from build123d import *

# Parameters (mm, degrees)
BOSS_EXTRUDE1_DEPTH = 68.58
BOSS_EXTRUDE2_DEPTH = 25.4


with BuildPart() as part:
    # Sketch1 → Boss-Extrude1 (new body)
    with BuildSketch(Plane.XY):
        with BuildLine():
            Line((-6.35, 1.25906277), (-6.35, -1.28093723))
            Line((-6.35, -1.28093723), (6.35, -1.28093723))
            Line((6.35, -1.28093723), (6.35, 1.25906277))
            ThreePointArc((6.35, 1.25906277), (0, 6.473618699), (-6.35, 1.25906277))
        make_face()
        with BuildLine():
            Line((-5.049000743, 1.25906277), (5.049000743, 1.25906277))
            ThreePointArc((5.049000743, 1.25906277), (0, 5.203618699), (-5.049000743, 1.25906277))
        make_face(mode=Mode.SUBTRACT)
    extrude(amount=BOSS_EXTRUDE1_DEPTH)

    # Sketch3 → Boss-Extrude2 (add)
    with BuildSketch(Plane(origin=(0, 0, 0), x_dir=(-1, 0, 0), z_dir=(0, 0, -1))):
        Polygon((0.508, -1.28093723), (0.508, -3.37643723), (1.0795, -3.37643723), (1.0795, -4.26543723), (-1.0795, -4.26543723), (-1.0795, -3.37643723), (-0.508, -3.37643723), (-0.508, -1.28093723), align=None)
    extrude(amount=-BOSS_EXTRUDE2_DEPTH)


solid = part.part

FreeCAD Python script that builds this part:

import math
import FreeCAD as App
import Part
import Sketcher
from FreeCAD import Vector
Q = App.Units.Quantity


def add_polygon(sketch, points):
    """Adds a closed chain of lines whose ends are joined by coincident constraints."""
    first, n = sketch.GeometryCount, len(points)
    for a, b in zip(points, points[1:] + points[:1]):
        sketch.addGeometry(Part.LineSegment(App.Vector(*a, 0), App.Vector(*b, 0)), False)
    for i in range(n):
        sketch.addConstraint(Sketcher.Constraint("Coincident", first + i, 2, first + (i + 1) % n, 1))

doc = App.newDocument("Part")
params = doc.addObject("Spreadsheet::Sheet", "Params")
for row, (alias, value) in enumerate([
    ("sketch1_width", "0.5 in"),
    ("sketch1_height", "0.1 in"),
    ("pad1_length", "2.7 in"),
    ("sketch2_width", "0.04 in"),
    ("sketch2_width2", "0.085 in"),
    ("sketch2_height", "0.035 in"),
    ("pad2_length", "1 in"),
], start=1):
    params.set(f"A{row}", alias)
    params.set(f"B{row}", "=" + value)
    params.setAlias(f"B{row}", alias)

body = doc.addObject("PartDesign::Body", "Body")

# Sketch on XY plane
sketch1 = doc.addObject("Sketcher::SketchObject", "Sketch")
body.addObject(sketch1)
sketch1.AttachmentSupport = (doc.XY_Plane, [""])
sketch1.MapMode = "FlatFace"
sketch1.addGeometry(Part.LineSegment(Vector(-6.3, 1.3, 0), Vector(-6.3, -1.3, 0)), False)
sketch1.addGeometry(Part.LineSegment(Vector(-6.3, -1.3, 0), Vector(6.3, -1.3, 0)), False)
sketch1.addGeometry(Part.LineSegment(Vector(6.3, -1.3, 0), Vector(6.3, 1.3, 0)), False)
sketch1.addGeometry(Part.ArcOfCircle(Part.Circle(Vector(0, 0, 0), Vector(0, 0, 1), 6.5), math.radians(11), math.radians(169)), False)
sketch1.addGeometry(Part.LineSegment(Vector(5, 1.3, 0), Vector(-5, 1.3, 0)), False)
sketch1.addGeometry(Part.ArcOfCircle(Part.Circle(Vector(0, 0, 0), Vector(0, 0, 1), 5.2), math.radians(14), math.radians(166)), False)
sketch1.addConstraint(Sketcher.Constraint("Coincident", 0, 2, 1, 1))
sketch1.addConstraint(Sketcher.Constraint("Coincident", 1, 2, 2, 1))
sketch1.addConstraint(Sketcher.Constraint("Coincident", 2, 2, 3, 1))
sketch1.addConstraint(Sketcher.Constraint("Coincident", 3, 2, 0, 1))
sketch1.addConstraint(Sketcher.Constraint("Coincident", 4, 1, 5, 1))
sketch1.addConstraint(Sketcher.Constraint("Coincident", 5, 2, 4, 2))
sketch1.addConstraint(Sketcher.Constraint("Vertical", 0))
sketch1.addConstraint(Sketcher.Constraint("Horizontal", 1))
sketch1.addConstraint(Sketcher.Constraint("Vertical", 2))
sketch1.addConstraint(Sketcher.Constraint("Horizontal", 4))
sketch1.addConstraint(Sketcher.Constraint("Coincident", 3, 3, -1, 1))
sketch1.addConstraint(Sketcher.Constraint("Coincident", 5, 3, -1, 1))
sketch1.addConstraint(Sketcher.Constraint("Horizontal", 2, 2, 3, 2))
sketch1.addConstraint(Sketcher.Constraint("Horizontal", 3, 2, 4, 1))
sketch1.addConstraint(Sketcher.Constraint("DistanceX", 1, 1, 1, 2, Q("0.5 in")))
sketch1.addConstraint(Sketcher.Constraint("DistanceY", 0, 2, 0, 1, Q("0.1 in")))
sketch1.addConstraint(Sketcher.Constraint("Radius", 3, Q("6.473619 mm")))
sketch1.addConstraint(Sketcher.Constraint("Radius", 5, Q("5.203619 mm")))
sketch1.setExpression("Constraints[14]", "Params.sketch1_width")
sketch1.setExpression("Constraints[15]", "Params.sketch1_height")
pad1 = doc.addObject("PartDesign::Pad", "Pad")
body.addObject(pad1)
pad1.Profile = sketch1
pad1.setExpression("Length", "Params.pad1_length")

# Sketch on XY plane
sketch2 = doc.addObject("Sketcher::SketchObject", "Sketch001")
body.addObject(sketch2)
sketch2.AttachmentSupport = (doc.XY_Plane, [""])
sketch2.MapMode = "FlatFace"
add_polygon(sketch2, [(-0.5, -3.4), (-0.5, -1.3), (0.5, -1.3), (0.5, -3.4), (1.1, -3.4), (1.1, -4.3), (-1.1, -4.3), (-1.1, -3.4)])  # lines 0-7
sketch2.addConstraint(Sketcher.Constraint("Vertical", 0))
sketch2.addConstraint(Sketcher.Constraint("Horizontal", 1))
sketch2.addConstraint(Sketcher.Constraint("Vertical", 2))
sketch2.addConstraint(Sketcher.Constraint("Horizontal", 3))
sketch2.addConstraint(Sketcher.Constraint("Vertical", 4))
sketch2.addConstraint(Sketcher.Constraint("Horizontal", 5))
sketch2.addConstraint(Sketcher.Constraint("Vertical", 6))
sketch2.addConstraint(Sketcher.Constraint("Horizontal", 7))
sketch2.addConstraint(Sketcher.Constraint("Symmetric", 3, 2, 6, 2, -2))
sketch2.addConstraint(Sketcher.Constraint("Equal", 3, 7))
sketch2.addConstraint(Sketcher.Constraint("DistanceX", 1, 1, 1, 2, Q("0.04 in")))
sketch2.addConstraint(Sketcher.Constraint("DistanceX", 5, 2, 5, 1, Q("0.085 in")))
sketch2.addConstraint(Sketcher.Constraint("DistanceY", 4, 2, 4, 1, Q("0.035 in")))
sketch2.addConstraint(Sketcher.Constraint("DistanceY", 0, 1, 0, 2, Q("0.0825 in")))
sketch2.addConstraint(Sketcher.Constraint("DistanceY", 0, 2, -1, 1, Q("1.280937 mm")))
sketch2.setExpression("Constraints[18]", "Params.sketch2_width")
sketch2.setExpression("Constraints[19]", "Params.sketch2_width2")
sketch2.setExpression("Constraints[20]", "Params.sketch2_height")
pad2 = doc.addObject("PartDesign::Pad", "Pad001")
body.addObject(pad2)
pad2.Profile = sketch2
pad2.setExpression("Length", "Params.pad2_length")

doc.recompute()
